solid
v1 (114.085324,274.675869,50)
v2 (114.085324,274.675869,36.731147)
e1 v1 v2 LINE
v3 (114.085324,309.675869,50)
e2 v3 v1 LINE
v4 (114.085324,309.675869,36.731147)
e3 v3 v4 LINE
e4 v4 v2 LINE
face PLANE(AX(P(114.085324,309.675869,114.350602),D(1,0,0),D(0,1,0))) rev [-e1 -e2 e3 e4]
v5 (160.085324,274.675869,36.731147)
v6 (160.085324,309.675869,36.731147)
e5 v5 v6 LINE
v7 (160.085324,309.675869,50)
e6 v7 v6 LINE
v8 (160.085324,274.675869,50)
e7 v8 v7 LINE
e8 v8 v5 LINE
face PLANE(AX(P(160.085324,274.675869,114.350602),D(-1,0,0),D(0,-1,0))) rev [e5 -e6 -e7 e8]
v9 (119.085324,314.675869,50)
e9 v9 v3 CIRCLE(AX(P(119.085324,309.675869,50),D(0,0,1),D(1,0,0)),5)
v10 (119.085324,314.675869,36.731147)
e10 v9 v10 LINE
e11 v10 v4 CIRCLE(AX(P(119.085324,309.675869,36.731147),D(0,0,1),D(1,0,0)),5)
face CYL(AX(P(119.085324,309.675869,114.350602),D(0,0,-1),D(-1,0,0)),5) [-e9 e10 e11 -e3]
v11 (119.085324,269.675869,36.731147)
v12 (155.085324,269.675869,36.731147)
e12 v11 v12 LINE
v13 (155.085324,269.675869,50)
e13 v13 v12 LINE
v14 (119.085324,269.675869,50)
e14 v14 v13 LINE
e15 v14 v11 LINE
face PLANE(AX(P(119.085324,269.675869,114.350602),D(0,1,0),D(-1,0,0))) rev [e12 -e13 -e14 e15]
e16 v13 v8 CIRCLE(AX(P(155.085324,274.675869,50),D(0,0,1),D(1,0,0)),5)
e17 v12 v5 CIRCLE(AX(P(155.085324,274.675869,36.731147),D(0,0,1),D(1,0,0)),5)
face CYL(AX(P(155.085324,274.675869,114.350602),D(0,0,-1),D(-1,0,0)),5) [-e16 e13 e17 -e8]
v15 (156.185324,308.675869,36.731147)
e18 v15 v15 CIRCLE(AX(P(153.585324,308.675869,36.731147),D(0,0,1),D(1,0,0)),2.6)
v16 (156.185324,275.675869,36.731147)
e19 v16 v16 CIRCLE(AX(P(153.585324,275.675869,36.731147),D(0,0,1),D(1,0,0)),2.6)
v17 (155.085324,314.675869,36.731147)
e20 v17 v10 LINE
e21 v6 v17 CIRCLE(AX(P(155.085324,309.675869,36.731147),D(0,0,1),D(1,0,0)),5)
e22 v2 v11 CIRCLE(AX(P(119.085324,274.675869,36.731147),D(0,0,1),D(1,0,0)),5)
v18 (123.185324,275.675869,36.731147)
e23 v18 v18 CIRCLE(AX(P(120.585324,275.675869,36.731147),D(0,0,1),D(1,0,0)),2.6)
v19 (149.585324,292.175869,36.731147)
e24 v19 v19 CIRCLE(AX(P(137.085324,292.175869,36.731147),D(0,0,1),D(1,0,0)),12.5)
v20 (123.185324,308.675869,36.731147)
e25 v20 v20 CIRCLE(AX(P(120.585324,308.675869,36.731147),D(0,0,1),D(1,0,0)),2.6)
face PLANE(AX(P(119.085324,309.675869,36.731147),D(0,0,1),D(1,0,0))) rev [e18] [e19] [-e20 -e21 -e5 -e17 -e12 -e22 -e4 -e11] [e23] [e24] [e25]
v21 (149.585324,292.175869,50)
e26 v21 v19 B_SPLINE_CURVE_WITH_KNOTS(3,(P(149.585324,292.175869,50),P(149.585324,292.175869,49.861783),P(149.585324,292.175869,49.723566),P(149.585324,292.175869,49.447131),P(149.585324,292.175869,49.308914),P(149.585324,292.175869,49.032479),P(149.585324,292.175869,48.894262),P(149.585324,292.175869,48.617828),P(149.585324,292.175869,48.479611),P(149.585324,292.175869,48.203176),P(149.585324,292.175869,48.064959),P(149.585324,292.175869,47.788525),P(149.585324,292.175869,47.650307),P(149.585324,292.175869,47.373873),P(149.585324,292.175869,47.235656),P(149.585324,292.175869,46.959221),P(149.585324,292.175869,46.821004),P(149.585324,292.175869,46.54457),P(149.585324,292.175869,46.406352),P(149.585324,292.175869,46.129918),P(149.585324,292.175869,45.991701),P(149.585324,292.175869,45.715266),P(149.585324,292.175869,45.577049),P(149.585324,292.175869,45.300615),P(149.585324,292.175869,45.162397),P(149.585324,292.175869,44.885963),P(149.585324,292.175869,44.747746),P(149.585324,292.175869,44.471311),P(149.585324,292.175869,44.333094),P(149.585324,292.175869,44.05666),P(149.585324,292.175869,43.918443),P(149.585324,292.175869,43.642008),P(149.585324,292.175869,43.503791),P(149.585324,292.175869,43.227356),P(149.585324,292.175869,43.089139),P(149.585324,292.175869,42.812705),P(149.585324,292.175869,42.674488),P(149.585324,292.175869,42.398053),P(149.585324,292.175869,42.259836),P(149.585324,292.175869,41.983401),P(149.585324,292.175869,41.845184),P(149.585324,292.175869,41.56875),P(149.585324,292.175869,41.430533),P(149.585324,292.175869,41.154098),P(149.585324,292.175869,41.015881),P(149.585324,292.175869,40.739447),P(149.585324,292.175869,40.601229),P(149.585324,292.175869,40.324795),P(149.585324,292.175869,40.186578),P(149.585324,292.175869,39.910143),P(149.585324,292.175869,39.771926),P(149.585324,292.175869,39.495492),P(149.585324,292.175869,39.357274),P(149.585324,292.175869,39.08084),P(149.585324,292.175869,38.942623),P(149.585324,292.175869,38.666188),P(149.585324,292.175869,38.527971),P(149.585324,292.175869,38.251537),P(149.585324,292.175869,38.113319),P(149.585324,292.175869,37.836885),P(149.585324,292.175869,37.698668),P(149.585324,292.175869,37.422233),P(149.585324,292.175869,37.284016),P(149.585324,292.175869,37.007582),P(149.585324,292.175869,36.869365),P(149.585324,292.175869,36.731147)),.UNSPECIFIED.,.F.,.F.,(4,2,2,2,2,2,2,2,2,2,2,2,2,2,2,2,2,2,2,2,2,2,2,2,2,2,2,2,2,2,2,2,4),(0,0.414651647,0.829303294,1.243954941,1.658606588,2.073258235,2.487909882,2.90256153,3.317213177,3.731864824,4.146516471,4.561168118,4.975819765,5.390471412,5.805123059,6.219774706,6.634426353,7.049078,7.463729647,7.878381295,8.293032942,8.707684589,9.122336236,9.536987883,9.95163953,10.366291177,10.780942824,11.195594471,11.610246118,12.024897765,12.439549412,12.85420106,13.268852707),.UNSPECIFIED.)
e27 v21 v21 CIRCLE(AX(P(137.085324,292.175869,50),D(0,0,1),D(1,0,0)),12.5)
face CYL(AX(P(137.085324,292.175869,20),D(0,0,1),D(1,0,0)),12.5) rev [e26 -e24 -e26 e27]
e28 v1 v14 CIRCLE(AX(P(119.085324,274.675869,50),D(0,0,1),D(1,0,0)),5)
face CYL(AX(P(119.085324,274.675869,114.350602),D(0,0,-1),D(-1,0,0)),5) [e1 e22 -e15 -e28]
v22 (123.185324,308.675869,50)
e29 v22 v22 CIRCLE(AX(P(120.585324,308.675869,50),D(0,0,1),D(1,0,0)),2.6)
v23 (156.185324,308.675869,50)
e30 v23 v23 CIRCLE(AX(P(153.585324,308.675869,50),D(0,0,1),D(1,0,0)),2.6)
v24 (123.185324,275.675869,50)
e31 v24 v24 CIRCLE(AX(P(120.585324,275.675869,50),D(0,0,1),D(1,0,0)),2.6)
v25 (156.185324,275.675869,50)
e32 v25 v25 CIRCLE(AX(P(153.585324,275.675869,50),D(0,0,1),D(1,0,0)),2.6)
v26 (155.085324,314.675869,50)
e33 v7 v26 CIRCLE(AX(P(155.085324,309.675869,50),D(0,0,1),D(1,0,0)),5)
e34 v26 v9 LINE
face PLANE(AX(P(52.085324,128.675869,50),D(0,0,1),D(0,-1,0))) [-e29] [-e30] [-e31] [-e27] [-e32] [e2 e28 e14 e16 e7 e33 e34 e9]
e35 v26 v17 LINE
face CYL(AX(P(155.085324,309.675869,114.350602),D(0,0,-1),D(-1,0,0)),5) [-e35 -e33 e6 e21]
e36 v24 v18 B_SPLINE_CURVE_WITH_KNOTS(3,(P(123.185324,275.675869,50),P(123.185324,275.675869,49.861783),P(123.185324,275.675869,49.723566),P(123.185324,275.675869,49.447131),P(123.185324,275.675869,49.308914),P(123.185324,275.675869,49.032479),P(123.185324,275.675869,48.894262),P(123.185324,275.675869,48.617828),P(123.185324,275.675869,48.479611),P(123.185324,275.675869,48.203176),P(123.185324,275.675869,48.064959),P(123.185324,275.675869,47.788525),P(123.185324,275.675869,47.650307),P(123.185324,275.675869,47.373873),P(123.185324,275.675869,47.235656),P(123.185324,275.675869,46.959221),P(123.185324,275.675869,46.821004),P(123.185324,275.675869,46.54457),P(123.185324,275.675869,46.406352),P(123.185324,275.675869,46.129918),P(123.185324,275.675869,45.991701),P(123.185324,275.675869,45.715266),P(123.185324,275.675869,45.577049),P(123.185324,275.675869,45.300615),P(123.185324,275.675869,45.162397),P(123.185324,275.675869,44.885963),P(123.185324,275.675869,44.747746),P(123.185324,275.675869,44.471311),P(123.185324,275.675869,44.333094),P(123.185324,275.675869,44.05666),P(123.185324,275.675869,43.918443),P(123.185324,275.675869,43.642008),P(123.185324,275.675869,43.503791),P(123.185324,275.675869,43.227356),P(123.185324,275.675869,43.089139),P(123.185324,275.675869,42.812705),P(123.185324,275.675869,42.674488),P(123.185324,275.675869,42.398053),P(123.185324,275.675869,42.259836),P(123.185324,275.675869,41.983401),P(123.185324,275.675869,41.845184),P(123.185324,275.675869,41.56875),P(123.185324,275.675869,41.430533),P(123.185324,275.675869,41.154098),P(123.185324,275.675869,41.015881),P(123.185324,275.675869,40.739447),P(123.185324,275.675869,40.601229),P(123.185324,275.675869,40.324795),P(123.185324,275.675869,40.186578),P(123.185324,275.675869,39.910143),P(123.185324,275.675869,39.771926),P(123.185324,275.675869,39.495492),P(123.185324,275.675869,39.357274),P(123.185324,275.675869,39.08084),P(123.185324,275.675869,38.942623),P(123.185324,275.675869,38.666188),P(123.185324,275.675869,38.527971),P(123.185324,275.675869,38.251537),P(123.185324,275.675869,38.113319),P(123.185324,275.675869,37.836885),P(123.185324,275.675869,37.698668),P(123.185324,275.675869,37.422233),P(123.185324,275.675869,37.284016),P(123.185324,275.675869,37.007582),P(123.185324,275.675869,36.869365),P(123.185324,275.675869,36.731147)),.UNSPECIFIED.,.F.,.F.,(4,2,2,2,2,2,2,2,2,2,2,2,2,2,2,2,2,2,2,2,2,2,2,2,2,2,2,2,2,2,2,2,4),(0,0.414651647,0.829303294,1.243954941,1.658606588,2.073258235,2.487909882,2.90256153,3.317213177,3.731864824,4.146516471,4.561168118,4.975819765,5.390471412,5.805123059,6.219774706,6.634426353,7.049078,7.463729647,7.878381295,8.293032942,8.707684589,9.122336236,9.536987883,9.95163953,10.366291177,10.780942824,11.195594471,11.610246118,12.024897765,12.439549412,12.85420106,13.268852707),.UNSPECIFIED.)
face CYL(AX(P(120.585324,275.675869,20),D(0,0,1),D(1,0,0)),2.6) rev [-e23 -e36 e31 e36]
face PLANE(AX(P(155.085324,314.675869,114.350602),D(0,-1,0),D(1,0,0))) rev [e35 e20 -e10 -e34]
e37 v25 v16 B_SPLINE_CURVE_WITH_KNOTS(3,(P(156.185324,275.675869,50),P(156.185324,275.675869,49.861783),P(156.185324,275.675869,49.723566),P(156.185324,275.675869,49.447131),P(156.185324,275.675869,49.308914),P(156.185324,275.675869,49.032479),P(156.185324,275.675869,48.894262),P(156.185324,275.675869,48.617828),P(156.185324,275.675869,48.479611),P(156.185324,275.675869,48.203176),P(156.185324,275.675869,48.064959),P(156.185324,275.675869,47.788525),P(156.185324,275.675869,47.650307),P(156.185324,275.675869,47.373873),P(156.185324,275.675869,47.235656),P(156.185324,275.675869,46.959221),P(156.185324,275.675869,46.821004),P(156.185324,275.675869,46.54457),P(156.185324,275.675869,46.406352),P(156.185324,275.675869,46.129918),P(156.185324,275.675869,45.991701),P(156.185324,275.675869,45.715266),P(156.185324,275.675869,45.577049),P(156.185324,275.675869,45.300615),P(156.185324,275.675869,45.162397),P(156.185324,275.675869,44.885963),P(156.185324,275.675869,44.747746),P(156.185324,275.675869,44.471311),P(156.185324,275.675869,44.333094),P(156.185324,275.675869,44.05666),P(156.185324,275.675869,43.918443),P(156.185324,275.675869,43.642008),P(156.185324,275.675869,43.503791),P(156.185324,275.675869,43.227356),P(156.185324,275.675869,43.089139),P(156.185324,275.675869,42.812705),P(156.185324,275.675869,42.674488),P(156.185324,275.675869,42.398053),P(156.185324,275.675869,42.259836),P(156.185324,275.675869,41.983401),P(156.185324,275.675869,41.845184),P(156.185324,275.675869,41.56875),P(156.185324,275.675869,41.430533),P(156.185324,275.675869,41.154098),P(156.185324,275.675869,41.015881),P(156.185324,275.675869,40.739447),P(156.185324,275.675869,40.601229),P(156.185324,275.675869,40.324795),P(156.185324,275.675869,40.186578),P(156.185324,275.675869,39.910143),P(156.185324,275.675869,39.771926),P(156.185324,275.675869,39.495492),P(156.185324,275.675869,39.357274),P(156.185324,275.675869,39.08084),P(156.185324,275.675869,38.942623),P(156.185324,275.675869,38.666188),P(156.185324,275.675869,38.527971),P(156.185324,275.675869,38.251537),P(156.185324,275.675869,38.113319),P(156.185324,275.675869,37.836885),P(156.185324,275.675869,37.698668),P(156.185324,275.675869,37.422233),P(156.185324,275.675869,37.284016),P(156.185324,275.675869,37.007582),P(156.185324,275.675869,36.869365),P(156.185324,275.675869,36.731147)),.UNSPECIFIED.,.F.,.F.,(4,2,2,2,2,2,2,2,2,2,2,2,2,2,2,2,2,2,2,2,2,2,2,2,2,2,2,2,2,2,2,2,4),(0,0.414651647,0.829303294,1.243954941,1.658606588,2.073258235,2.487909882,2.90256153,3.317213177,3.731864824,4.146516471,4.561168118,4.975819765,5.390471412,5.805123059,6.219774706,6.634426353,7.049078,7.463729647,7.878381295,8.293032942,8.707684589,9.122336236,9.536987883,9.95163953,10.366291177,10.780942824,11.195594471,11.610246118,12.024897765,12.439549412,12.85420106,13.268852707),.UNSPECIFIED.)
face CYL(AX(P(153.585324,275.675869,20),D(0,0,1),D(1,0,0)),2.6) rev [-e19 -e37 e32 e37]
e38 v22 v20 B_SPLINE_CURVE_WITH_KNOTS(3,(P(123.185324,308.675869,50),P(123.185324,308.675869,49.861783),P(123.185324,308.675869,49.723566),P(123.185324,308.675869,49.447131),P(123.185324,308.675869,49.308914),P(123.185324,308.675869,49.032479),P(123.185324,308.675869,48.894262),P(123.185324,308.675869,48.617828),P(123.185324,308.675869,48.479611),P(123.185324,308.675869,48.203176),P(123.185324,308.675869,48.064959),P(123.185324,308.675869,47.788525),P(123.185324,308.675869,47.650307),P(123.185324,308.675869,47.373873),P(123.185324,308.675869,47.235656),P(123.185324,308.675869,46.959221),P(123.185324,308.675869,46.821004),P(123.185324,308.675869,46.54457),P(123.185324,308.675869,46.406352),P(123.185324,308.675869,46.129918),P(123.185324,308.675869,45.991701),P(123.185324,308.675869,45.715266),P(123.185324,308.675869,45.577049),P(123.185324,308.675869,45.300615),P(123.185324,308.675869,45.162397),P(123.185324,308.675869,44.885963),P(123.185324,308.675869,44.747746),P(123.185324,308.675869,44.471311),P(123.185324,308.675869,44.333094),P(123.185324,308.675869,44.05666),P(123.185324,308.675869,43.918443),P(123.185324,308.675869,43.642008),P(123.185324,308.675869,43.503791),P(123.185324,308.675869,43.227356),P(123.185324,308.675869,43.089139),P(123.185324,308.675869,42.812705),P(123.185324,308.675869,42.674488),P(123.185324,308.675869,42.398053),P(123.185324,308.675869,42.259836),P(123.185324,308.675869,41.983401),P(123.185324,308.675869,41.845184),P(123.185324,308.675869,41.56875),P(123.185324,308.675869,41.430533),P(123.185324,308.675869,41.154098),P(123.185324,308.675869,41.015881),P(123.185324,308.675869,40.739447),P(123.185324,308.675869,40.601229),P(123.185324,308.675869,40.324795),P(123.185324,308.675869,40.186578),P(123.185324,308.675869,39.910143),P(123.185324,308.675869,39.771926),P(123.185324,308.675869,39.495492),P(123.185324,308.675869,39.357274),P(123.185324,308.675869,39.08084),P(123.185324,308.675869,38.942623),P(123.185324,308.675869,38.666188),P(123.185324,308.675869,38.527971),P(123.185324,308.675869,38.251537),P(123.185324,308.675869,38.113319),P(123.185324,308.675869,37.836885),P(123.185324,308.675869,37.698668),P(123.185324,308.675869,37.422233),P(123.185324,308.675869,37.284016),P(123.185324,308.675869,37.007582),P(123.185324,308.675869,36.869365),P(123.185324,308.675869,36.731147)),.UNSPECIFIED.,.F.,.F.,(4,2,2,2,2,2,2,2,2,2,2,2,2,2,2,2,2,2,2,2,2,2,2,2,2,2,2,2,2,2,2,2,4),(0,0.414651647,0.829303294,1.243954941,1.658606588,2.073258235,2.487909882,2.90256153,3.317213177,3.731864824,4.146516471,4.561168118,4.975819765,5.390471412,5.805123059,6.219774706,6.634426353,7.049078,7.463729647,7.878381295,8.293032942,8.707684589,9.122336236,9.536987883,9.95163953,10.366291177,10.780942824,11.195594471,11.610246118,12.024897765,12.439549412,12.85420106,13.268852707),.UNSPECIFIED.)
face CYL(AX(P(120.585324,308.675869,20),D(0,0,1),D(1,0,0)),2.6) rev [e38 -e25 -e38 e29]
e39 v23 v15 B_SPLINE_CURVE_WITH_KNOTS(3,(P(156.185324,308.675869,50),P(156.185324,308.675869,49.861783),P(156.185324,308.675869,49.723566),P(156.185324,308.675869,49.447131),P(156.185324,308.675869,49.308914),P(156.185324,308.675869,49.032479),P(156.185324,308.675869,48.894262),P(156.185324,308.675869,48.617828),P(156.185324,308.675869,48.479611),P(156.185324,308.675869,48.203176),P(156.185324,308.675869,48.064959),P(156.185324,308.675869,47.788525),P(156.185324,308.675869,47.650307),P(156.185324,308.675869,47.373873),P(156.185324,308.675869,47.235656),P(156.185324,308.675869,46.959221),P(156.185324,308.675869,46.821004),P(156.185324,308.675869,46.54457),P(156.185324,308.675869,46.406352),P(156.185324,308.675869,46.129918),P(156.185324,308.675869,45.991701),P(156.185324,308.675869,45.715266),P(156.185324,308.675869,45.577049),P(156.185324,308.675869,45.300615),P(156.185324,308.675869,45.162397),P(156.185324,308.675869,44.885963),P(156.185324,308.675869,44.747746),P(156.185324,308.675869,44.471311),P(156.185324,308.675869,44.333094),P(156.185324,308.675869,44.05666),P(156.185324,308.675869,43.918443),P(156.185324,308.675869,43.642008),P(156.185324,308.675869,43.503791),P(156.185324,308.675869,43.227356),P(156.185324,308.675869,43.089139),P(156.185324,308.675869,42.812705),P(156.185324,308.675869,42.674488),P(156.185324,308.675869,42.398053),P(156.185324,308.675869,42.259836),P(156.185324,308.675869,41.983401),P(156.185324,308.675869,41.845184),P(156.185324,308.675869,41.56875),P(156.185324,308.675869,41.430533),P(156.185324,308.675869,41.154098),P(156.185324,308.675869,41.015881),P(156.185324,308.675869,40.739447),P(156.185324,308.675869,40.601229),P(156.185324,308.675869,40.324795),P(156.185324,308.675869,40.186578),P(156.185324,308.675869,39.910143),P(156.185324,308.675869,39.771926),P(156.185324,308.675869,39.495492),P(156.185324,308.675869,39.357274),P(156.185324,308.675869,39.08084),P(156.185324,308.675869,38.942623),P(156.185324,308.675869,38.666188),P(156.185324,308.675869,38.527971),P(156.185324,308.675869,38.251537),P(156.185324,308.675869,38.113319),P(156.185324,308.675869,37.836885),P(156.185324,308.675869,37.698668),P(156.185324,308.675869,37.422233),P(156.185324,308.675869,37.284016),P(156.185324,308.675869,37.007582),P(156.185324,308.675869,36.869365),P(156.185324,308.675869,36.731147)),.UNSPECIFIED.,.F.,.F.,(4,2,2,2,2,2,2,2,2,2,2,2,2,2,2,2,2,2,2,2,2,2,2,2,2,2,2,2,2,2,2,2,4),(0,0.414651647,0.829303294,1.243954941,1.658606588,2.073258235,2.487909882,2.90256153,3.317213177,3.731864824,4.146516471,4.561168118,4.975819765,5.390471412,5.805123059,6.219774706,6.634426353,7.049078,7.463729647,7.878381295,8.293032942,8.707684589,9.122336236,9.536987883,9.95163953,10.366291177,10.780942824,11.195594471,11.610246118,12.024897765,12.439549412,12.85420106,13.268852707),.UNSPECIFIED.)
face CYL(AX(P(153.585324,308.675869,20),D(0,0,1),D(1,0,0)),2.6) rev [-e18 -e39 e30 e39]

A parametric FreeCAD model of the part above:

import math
import FreeCAD as App
import Part
import Sketcher

doc = App.newDocument("Part")
body = doc.addObject("PartDesign::Body", "Body")

sketch1 = body.newObject("Sketcher::SketchObject", "Sketch")
sketch1.AttachmentSupport = (doc.getObject("XY_Plane"), [""])
sketch1.MapMode = "FlatFace"
sketch1.AttachmentOffset = App.Placement(App.Vector(0, 0, 36.731147), App.Rotation())
sketch1.addGeometry(Part.LineSegment(App.Vector(114, 310, 0), App.Vector(114, 275, 0)), False)
sketch1.addGeometry(Part.ArcOfCircle(Part.Circle(App.Vector(119, 275, 0), App.Vector(0, 0, 1), 5), math.radians(-180), math.radians(-90)), False)
sketch1.addGeometry(Part.LineSegment(App.Vector(119, 270, 0), App.Vector(155, 270, 0)), False)
sketch1.addGeometry(Part.ArcOfCircle(Part.Circle(App.Vector(155, 275, 0), App.Vector(0, 0, 1), 5), math.radians(-90), math.radians(0)), False)
sketch1.addGeometry(Part.LineSegment(App.Vector(160, 275, 0), App.Vector(160, 310, 0)), False)
sketch1.addGeometry(Part.ArcOfCircle(Part.Circle(App.Vector(155, 310, 0), App.Vector(0, 0, 1), 5), math.radians(0), math.radians(90)), False)
sketch1.addGeometry(Part.LineSegment(App.Vector(155, 315, 0), App.Vector(119, 315, 0)), False)
sketch1.addGeometry(Part.ArcOfCircle(Part.Circle(App.Vector(119, 310, 0), App.Vector(0, 0, 1), 5), math.radians(90), math.radians(180)), False)
sketch1.addConstraint(Sketcher.Constraint("Tangent", 0, 2, 1, 1))
sketch1.addConstraint(Sketcher.Constraint("Tangent", 1, 2, 2, 1))
sketch1.addConstraint(Sketcher.Constraint("Tangent", 2, 2, 3, 1))
sketch1.addConstraint(Sketcher.Constraint("Tangent", 3, 2, 4, 1))
sketch1.addConstraint(Sketcher.Constraint("Tangent", 4, 2, 5, 1))
sketch1.addConstraint(Sketcher.Constraint("Tangent", 5, 2, 6, 1))
sketch1.addConstraint(Sketcher.Constraint("Tangent", 6, 2, 7, 1))
sketch1.addConstraint(Sketcher.Constraint("Tangent", 7, 2, 0, 1))
sketch1.addConstraint(Sketcher.Constraint("Vertical", 0))
sketch1.addConstraint(Sketcher.Constraint("Horizontal", 2))
sketch1.addConstraint(Sketcher.Constraint("Vertical", 4))
sketch1.addConstraint(Sketcher.Constraint("Horizontal", 6))
sketch1.addConstraint(Sketcher.Constraint("Equal", 1, 3))
sketch1.addConstraint(Sketcher.Constraint("Equal", 3, 5))
sketch1.addConstraint(Sketcher.Constraint("Equal", 5, 7))
sketch1.addConstraint(Sketcher.Constraint("Radius", 1, 5.0))
sketch1.addConstraint(Sketcher.Constraint("DistanceX", 2, 1, 2, 2, 36.0))
sketch1.addConstraint(Sketcher.Constraint("DistanceY", 0, 2, 0, 1, 35.0))
sketch1.addConstraint(Sketcher.Constraint("DistanceY", -1, 1, 1, 3, 274.675869))
sketch1.addConstraint(Sketcher.Constraint("DistanceX", -1, 1, 1, 3, 119.085324))
pad1 = body.newObject("PartDesign::Pad", "Pad")
pad1.Profile = sketch1
pad1.Length = 13.268853

sketch2 = body.newObject("Sketcher::SketchObject", "Sketch001")
sketch2.AttachmentSupport = (doc.getObject("XY_Plane"), [""])
sketch2.MapMode = "FlatFace"
sketch2.AttachmentOffset = App.Placement(App.Vector(0, 0, 50), App.Rotation())
sketch2.addGeometry(Part.Circle(App.Vector(153.6, 308.7, 0), App.Vector(0, 0, 1), 2.6), False)
sketch2.addGeometry(Part.Circle(App.Vector(120.6, 308.7, 0), App.Vector(0, 0, 1), 2.6), False)
sketch2.addGeometry(Part.Circle(App.Vector(120.6, 275.7, 0), App.Vector(0, 0, 1), 2.6), False)
sketch2.addGeometry(Part.Circle(App.Vector(153.6, 275.7, 0), App.Vector(0, 0, 1), 2.6), False)
sketch2.addConstraint(Sketcher.Constraint("Equal", 0, 1))
sketch2.addConstraint(Sketcher.Constraint("Equal", 1, 2))
sketch2.addConstraint(Sketcher.Constraint("Equal", 2, 3))
sketch2.addConstraint(Sketcher.Constraint("Horizontal", 0, 3, 1, 3))
sketch2.addConstraint(Sketcher.Constraint("Horizontal", 2, 3, 3, 3))
sketch2.addConstraint(Sketcher.Constraint("Vertical", 1, 3, 2, 3))
sketch2.addConstraint(Sketcher.Constraint("Vertical", 0, 3, 3, 3))
sketch2.addConstraint(Sketcher.Constraint("Diameter", 0, 5.2))
sketch2.addConstraint(Sketcher.Constraint("DistanceX", 1, 3, 0, 3, 33.0))
sketch2.addConstraint(Sketcher.Constraint("DistanceY", 2, 3, 1, 3, 33.0))
sketch2.addConstraint(Sketcher.Constraint("DistanceY", -1, 1, 0, 3, 308.675869))
sketch2.addConstraint(Sketcher.Constraint("DistanceX", -1, 1, 0, 3, 153.585324))
pocket1 = body.newObject("PartDesign::Pocket", "Pocket")
pocket1.Profile = sketch2
pocket1.Length = 30

sketch3 = body.newObject("Sketcher::SketchObject", "Sketch002")
sketch3.AttachmentSupport = (doc.getObject("XY_Plane"), [""])
sketch3.MapMode = "FlatFace"
sketch3.AttachmentOffset = App.Placement(App.Vector(0, 0, 50), App.Rotation())
sketch3.addGeometry(Part.Circle(App.Vector(137, 292, 0), App.Vector(0, 0, 1), 12), False)
sketch3.addConstraint(Sketcher.Constraint("Diameter", 0, 25.0))
sketch3.addConstraint(Sketcher.Constraint("DistanceY", -1, 1, 0, 3, 292.175869))
sketch3.addConstraint(Sketcher.Constraint("DistanceX", -1, 1, 0, 3, 137.085324))
pocket2 = body.newObject("PartDesign::Pocket", "Pocket001")
pocket2.Profile = sketch3
pocket2.Length = 30

doc.recompute()
